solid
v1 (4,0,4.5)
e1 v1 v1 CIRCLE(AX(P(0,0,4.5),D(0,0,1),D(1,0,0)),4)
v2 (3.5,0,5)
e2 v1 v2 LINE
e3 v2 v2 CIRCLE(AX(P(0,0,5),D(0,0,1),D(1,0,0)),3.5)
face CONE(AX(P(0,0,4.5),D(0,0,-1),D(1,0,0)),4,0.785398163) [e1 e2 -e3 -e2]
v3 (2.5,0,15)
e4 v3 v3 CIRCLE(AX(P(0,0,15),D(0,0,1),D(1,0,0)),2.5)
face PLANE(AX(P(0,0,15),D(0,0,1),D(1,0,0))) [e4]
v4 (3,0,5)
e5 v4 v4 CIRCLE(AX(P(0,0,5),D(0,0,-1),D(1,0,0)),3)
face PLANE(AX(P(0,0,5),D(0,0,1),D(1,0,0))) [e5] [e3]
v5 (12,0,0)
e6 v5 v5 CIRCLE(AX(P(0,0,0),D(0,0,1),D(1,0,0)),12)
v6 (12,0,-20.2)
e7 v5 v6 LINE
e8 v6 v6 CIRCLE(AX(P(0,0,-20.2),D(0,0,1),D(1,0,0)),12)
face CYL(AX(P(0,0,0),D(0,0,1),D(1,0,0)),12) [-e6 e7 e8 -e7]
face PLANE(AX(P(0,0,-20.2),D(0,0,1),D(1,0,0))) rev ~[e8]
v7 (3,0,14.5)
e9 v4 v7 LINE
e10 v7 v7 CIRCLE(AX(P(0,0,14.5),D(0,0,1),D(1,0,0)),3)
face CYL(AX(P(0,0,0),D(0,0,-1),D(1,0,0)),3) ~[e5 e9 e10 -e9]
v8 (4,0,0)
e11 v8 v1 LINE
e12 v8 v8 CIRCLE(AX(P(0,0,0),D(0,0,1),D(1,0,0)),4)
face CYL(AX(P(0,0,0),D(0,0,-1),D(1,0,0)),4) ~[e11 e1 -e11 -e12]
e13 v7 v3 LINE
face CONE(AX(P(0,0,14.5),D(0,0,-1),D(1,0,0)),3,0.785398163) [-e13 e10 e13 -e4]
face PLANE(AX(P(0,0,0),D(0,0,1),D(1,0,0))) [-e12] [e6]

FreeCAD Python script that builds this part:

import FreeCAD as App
import Part
import Sketcher


def edges_at(feature, points):
    """Names of the edges that pass closest to the given points."""
    edges = feature.Shape.Edges
    near = lambda p: min(range(len(edges)), key=lambda i: edges[i].distToShape(Part.Vertex(*p))[0])
    return sorted({f"Edge{near(p) + 1}" for p in points})

doc = App.newDocument("Part")
body = doc.addObject("PartDesign::Body", "Body")

sketch1 = body.newObject("Sketcher::SketchObject", "Sketch")
sketch1.AttachmentSupport = (doc.getObject("XY_Plane"), [""])
sketch1.MapMode = "FlatFace"
sketch1.addGeometry(Part.Circle(App.Vector(0, 0, 0), App.Vector(0, 0, 1), 12), False)
sketch1.addConstraint(Sketcher.Constraint("Coincident", 0, 3, -1, 1))
sketch1.addConstraint(Sketcher.Constraint("Diameter", 0, 24.0))
pad1 = body.newObject("PartDesign::Pad", "Pad")
pad1.Profile = sketch1
pad1.Length = 20.2
pad1.Reversed = True

sketch2 = body.newObject("Sketcher::SketchObject", "Sketch001")
sketch2.AttachmentSupport = (doc.getObject("XY_Plane"), [""])
sketch2.MapMode = "FlatFace"
sketch2.addGeometry(Part.Circle(App.Vector(0, 0, 0), App.Vector(0, 0, 1), 3), False)
sketch2.addConstraint(Sketcher.Constraint("Coincident", 0, 3, -1, 1))
sketch2.addConstraint(Sketcher.Constraint("Diameter", 0, 6.0))
pad2 = body.newObject("PartDesign::Pad", "Pad001")
pad2.Profile = sketch2
pad2.Length = 15

sketch3 = body.newObject("Sketcher::SketchObject", "Sketch002")
sketch3.AttachmentSupport = (doc.getObject("XY_Plane"), [""])
sketch3.MapMode = "FlatFace"
sketch3.addGeometry(Part.Circle(App.Vector(0, 0, 0), App.Vector(0, 0, 1), 4), False)
sketch3.addConstraint(Sketcher.Constraint("Coincident", 0, 3, -1, 1))
sketch3.addConstraint(Sketcher.Constraint("Diameter", 0, 8.0))
pad3 = body.newObject("PartDesign::Pad", "Pad002")
pad3.Profile = sketch3
pad3.Length = 5
doc.recompute()

chamfer = body.newObject("PartDesign::Chamfer", "Chamfer")
chamfer.Base = (pad3, edges_at(pad3, [(-4, 0, 5), (-3, 0, 15)]))
chamfer.Size = 0.5

doc.recompute()
